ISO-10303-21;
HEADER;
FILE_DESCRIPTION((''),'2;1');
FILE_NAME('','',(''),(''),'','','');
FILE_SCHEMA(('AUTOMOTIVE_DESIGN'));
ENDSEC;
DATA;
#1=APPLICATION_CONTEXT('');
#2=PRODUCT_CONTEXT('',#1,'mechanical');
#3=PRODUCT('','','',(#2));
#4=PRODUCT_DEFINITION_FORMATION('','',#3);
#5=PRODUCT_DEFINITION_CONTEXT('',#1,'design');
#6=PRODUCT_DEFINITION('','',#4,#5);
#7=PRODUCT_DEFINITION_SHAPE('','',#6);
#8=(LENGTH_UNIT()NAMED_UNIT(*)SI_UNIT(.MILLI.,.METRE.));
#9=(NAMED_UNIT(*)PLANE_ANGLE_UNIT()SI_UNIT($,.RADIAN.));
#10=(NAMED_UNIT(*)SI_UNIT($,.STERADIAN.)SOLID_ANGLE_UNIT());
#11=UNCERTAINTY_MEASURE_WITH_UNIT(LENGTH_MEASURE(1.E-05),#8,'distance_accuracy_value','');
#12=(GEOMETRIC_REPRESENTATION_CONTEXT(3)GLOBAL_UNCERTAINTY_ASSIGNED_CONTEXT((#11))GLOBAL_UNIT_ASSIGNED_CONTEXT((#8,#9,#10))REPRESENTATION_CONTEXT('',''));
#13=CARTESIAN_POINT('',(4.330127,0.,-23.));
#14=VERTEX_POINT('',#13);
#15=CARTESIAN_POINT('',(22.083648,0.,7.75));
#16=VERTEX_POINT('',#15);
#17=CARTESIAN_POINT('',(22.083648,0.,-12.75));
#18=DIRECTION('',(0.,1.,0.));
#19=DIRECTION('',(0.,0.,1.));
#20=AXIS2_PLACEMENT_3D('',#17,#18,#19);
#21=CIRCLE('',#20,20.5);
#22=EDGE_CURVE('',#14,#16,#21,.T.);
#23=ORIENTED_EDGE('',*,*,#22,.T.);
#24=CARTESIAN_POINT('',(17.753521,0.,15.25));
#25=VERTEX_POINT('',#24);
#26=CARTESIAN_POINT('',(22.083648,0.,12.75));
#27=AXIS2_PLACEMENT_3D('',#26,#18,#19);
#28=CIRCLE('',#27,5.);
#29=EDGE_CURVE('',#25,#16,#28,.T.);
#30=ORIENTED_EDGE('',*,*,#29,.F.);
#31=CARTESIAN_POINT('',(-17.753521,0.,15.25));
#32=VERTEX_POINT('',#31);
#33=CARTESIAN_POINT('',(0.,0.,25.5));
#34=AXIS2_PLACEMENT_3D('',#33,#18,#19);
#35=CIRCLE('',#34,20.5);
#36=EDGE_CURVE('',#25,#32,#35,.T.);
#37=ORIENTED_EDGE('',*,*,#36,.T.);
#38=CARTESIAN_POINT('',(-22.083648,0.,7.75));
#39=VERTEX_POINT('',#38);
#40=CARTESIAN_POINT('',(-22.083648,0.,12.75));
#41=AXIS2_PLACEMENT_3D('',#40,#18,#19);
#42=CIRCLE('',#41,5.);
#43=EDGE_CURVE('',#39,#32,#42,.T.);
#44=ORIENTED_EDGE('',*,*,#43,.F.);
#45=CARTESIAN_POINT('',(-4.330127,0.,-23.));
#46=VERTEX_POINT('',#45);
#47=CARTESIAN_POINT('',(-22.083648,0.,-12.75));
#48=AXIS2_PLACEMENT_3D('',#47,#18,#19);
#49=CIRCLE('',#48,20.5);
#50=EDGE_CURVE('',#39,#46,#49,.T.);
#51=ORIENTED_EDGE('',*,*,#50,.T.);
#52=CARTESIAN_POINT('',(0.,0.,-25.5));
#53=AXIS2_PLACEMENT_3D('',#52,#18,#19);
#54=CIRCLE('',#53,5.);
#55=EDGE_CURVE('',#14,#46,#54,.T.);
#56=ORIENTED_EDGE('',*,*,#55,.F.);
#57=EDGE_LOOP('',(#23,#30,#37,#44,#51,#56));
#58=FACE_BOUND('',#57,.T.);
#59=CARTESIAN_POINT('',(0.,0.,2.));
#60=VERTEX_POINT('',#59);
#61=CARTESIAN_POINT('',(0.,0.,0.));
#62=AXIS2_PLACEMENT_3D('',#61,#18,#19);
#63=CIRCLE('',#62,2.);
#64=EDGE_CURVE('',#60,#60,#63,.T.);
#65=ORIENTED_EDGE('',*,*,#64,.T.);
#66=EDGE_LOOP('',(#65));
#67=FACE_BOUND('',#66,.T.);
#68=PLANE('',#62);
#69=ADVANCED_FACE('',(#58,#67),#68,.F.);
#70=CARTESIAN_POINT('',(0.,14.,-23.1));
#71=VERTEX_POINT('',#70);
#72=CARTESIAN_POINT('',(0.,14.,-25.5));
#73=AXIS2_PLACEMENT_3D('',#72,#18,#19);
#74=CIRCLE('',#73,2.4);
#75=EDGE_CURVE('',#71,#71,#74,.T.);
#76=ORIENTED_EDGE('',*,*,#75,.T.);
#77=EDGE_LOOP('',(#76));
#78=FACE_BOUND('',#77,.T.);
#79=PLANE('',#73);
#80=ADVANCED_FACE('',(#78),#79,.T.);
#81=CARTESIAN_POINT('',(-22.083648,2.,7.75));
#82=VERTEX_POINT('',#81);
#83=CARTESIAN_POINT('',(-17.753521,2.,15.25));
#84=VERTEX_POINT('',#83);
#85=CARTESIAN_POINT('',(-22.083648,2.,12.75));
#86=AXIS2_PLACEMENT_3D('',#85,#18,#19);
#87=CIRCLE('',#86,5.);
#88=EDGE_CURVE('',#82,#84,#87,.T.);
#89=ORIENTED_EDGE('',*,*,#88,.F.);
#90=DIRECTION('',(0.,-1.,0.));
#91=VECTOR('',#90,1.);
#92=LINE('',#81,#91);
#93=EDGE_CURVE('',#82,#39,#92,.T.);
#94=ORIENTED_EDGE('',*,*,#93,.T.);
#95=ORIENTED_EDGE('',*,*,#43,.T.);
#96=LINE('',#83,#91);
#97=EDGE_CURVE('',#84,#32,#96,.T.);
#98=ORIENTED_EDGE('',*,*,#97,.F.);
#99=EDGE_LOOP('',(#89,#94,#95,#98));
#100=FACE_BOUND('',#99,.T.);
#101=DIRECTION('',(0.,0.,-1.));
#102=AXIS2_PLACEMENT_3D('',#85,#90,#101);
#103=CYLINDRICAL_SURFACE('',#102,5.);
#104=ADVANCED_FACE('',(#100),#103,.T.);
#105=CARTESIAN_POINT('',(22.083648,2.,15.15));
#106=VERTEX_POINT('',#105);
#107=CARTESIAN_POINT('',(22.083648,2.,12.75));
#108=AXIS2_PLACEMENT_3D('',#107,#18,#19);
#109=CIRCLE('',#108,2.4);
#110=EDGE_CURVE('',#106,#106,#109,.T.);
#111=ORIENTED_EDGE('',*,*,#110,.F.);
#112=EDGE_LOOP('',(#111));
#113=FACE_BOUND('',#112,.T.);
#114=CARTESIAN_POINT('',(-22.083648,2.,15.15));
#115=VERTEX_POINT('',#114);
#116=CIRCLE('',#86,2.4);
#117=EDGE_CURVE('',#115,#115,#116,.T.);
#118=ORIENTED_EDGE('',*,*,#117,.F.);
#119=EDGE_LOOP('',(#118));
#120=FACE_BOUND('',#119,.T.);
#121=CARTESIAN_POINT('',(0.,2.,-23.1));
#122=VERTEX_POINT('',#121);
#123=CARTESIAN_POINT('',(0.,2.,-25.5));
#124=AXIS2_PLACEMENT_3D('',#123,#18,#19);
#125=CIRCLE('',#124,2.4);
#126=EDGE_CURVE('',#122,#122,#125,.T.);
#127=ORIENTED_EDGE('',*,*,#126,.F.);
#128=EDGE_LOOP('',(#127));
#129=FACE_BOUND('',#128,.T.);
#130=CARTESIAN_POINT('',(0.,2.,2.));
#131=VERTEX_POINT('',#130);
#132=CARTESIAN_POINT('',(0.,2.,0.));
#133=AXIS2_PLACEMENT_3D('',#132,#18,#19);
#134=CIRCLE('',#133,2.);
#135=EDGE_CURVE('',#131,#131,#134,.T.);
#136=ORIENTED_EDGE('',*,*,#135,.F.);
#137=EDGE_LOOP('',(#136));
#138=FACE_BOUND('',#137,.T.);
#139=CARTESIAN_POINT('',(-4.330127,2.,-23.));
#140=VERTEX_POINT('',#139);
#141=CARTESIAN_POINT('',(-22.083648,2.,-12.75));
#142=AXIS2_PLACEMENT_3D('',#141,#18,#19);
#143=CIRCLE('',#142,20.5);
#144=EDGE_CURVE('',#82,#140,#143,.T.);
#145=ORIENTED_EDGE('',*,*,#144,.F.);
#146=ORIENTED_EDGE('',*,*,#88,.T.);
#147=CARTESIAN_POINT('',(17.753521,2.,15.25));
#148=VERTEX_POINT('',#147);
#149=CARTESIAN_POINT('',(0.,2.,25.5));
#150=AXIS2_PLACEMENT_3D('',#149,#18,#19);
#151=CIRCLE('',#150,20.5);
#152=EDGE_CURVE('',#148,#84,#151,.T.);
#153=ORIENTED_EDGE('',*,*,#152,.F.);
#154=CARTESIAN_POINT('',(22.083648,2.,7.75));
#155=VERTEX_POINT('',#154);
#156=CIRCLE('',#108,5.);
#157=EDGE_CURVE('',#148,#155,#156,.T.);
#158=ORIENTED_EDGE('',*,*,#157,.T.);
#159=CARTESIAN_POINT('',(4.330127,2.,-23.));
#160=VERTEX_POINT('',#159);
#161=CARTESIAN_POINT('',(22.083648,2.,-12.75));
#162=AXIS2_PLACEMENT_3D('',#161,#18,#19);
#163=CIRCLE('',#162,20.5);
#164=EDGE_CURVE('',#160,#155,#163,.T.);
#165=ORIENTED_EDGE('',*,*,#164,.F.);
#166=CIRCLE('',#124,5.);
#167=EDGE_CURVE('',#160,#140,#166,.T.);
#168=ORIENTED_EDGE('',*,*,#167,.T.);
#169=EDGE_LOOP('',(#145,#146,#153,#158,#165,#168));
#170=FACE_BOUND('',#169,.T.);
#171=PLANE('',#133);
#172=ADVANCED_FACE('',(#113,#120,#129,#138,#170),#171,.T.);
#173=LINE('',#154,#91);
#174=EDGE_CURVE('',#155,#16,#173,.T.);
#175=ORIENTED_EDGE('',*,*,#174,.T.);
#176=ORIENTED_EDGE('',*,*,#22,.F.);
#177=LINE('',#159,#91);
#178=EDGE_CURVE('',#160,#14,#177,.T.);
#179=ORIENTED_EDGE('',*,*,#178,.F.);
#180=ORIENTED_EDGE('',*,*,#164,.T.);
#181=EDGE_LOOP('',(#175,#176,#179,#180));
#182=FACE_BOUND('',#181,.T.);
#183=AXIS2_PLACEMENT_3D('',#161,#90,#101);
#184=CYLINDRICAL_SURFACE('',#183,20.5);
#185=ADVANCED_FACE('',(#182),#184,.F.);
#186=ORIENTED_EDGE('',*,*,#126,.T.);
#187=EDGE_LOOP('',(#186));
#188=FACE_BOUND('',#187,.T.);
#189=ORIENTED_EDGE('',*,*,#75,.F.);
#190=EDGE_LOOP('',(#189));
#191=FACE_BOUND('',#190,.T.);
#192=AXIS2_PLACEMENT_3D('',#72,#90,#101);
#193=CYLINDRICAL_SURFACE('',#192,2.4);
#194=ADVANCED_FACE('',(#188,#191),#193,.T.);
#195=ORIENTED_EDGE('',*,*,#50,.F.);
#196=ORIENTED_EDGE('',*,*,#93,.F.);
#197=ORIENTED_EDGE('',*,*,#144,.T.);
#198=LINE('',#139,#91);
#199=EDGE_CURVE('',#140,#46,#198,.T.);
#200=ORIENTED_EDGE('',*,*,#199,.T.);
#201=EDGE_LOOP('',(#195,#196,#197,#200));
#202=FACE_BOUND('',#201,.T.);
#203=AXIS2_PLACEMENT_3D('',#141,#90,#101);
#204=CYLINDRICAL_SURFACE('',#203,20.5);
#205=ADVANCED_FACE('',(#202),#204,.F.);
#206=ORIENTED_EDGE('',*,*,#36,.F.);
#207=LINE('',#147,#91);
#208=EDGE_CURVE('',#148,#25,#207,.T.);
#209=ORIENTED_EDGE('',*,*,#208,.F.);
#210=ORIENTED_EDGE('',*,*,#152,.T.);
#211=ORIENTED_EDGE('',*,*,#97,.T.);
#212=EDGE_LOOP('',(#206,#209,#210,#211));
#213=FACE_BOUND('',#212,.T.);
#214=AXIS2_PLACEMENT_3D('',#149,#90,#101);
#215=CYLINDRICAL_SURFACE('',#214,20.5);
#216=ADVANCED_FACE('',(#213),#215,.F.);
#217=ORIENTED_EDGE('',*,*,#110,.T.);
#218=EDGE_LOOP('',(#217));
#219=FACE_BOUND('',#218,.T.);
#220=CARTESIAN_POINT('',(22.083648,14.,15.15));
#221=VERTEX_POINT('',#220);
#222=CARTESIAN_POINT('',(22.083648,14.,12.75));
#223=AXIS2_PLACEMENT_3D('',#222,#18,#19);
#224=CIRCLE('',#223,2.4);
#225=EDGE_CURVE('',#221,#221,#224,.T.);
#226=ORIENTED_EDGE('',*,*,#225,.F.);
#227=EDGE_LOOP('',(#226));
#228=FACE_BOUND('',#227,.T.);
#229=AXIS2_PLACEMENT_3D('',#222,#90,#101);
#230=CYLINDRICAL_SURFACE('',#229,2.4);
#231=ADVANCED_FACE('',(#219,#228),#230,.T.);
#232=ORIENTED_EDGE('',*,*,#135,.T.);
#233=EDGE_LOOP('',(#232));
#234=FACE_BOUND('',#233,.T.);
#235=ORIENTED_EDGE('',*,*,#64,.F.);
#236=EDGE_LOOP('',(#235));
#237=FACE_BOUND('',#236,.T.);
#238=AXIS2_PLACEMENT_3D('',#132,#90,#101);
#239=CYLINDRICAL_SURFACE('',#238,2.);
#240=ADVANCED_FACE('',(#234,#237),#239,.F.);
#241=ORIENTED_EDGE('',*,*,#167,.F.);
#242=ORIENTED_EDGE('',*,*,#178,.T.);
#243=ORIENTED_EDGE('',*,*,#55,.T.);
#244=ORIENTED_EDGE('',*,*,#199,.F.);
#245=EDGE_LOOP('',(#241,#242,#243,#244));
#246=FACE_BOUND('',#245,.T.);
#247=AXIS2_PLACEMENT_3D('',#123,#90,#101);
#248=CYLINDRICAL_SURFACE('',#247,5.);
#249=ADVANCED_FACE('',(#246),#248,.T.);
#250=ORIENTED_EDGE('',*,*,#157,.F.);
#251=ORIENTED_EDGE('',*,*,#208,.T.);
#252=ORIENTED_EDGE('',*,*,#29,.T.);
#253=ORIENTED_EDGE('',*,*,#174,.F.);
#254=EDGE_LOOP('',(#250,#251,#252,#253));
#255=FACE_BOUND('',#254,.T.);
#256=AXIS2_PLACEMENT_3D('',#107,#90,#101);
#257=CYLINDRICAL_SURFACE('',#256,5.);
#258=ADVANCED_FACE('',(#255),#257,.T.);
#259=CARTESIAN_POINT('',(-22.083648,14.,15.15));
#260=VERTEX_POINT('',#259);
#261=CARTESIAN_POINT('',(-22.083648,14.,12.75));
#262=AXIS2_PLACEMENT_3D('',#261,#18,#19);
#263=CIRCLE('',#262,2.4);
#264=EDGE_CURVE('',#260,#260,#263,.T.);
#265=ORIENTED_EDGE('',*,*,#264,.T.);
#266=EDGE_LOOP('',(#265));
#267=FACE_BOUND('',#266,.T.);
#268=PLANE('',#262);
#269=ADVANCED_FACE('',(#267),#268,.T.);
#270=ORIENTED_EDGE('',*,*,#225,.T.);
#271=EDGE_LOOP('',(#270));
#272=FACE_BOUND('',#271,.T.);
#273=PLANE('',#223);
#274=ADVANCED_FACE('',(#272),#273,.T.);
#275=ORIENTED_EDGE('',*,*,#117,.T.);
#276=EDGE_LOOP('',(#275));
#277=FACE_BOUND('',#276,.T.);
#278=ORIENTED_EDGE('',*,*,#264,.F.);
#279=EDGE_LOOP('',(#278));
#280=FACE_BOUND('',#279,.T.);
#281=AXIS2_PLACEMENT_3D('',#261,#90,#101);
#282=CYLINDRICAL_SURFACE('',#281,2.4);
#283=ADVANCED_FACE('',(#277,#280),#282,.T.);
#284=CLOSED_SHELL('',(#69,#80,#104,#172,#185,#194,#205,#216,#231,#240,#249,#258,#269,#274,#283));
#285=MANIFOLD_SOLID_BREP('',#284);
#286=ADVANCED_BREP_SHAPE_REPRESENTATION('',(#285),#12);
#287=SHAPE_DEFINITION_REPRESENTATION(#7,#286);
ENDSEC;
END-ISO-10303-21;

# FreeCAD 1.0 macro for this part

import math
import FreeCAD as App
import Part
import Sketcher
Q = App.Units.Quantity

doc = App.newDocument("Part")
body = doc.addObject("PartDesign::Body", "Body")

# Sketch on XZ plane
sketch1 = body.newObject("Sketcher::SketchObject", "Sketch")
sketch1.AttachmentSupport = (doc.getObject("XZ_Plane"), [""])
sketch1.MapMode = "FlatFace"
sketch1.addGeometry([
    Part.ArcOfCircle(Part.Circle(App.Vector(22.083648, -12.75, 0), App.Vector(0, 0, 1), 20.5), math.radians(90), math.radians(210)),  # 0
    Part.ArcOfCircle(Part.Circle(App.Vector(0, -25.5, 0), App.Vector(0, 0, 1), 5), math.radians(5.626271), math.radians(30)),  # 1
    Part.ArcOfCircle(Part.Circle(App.Vector(0, -25.5, 0), App.Vector(0, 0, 1), 5), math.radians(174.373729), math.radians(365.626271)),  # 2
    Part.ArcOfCircle(Part.Circle(App.Vector(0, -25.5, 0), App.Vector(0, 0, 1), 5), math.radians(150), math.radians(174.373729)),  # 3
    Part.ArcOfCircle(Part.Circle(App.Vector(-22.083648, -12.75, 0), App.Vector(0, 0, 1), 20.5), math.radians(-30), math.radians(0)),  # 4
    Part.ArcOfCircle(Part.Circle(App.Vector(-22.083648, -12.75, 0), App.Vector(0, 0, 1), 20.5), math.radians(0), math.radians(90)),  # 5
    Part.ArcOfCircle(Part.Circle(App.Vector(-22.083648, 12.75, 0), App.Vector(0, 0, 1), 5), math.radians(-114.373729), math.radians(-90)),  # 6
    Part.ArcOfCircle(Part.Circle(App.Vector(-22.083648, 12.75, 0), App.Vector(0, 0, 1), 5), math.radians(54.373729), math.radians(245.626271)),  # 7
    Part.ArcOfCircle(Part.Circle(App.Vector(-22.083648, 12.75, 0), App.Vector(0, 0, 1), 5), math.radians(30), math.radians(54.373729)),  # 8
    Part.ArcOfCircle(Part.Circle(App.Vector(0, 25.5, 0), App.Vector(0, 0, 1), 20.5), math.radians(-150), math.radians(-30)),  # 9
    Part.ArcOfCircle(Part.Circle(App.Vector(22.083648, 12.75, 0), App.Vector(0, 0, 1), 5), math.radians(125.626271), math.radians(150)),  # 10
    Part.ArcOfCircle(Part.Circle(App.Vector(22.083648, 12.75, 0), App.Vector(0, 0, 1), 5), math.radians(-65.626271), math.radians(125.626271)),  # 11
    Part.ArcOfCircle(Part.Circle(App.Vector(22.083648, 12.75, 0), App.Vector(0, 0, 1), 5), math.radians(-90), math.radians(-65.626271)),  # 12
    Part.Circle(App.Vector(0, 0, 0), App.Vector(0, 0, 1), 2),  # 13
], False)
sketch1.addConstraint([
    Sketcher.Constraint("Tangent", 0, 2, 1, 2),
    Sketcher.Constraint("Tangent", 1, 1, 2, 2),
    Sketcher.Constraint("Tangent", 2, 1, 3, 2),
    Sketcher.Constraint("Tangent", 3, 1, 4, 1),
    Sketcher.Constraint("Tangent", 4, 2, 5, 1),
    Sketcher.Constraint("Tangent", 5, 2, 6, 2),
    Sketcher.Constraint("Tangent", 6, 1, 7, 2),
    Sketcher.Constraint("Tangent", 7, 1, 8, 2),
    Sketcher.Constraint("Tangent", 8, 1, 9, 1),
    Sketcher.Constraint("Tangent", 9, 2, 10, 2),
    Sketcher.Constraint("Tangent", 10, 1, 11, 2),
    Sketcher.Constraint("Tangent", 11, 1, 12, 2),
    Sketcher.Constraint("Tangent", 12, 1, 0, 1),
    Sketcher.Constraint("Coincident", 13, 3, -1, 1),
    Sketcher.Constraint("Coincident", 3, 3, 1, 3),
    Sketcher.Constraint("Coincident", 8, 3, 6, 3),
    Sketcher.Constraint("Coincident", 12, 3, 10, 3),
    Sketcher.Constraint("Equal", 0, 4),
    Sketcher.Constraint("Equal", 4, 5),
    Sketcher.Constraint("Equal", 3, 6),
    Sketcher.Constraint("Equal", 5, 9),
    Sketcher.Constraint("Equal", 8, 10),
    Sketcher.Constraint("Symmetric", 0, 3, 6, 3, -1, 1),
    Sketcher.Constraint("Symmetric", 0, 3, 4, 3, -2),
    Sketcher.Constraint("Symmetric", 7, 1, 10, 1, -2),
    Sketcher.Constraint("Horizontal", 1, 1, 2, 1),
    Sketcher.Constraint("Horizontal", 5, 3, 4, 2),
    Sketcher.Constraint("Horizontal", 6, 1, 11, 1),
    Sketcher.Constraint("Diameter", 13, Q("4 mm")),
    Sketcher.Constraint("Radius", 1, Q("5 mm")),
    Sketcher.Constraint("Radius", 0, Q("20.5 mm")),
    Sketcher.Constraint("DistanceY", 0, 2, -1, 1, Q("23 mm")),
    Sketcher.Constraint("DistanceX", 6, 1, -1, 1, Q("24.147082 mm")),
    Sketcher.Constraint("DistanceX", 7, 1, -1, 1, Q("19.171169 mm")),
    Sketcher.Constraint("DistanceX", 2, 1, 0, 2, Q("9.30604 mm")),
])
pad1 = body.newObject("PartDesign::Pad", "Pad")
pad1.Profile = sketch1
pad1.Length = 2
pad1.Reversed = True

# Sketch on XZ plane
sketch2 = body.newObject("Sketcher::SketchObject", "Sketch001")
sketch2.AttachmentSupport = (doc.getObject("XZ_Plane"), [""])
sketch2.MapMode = "FlatFace"
sketch2.AttachmentOffset = App.Placement(App.Vector(0, 0, -2), App.Rotation())
sketch2.addGeometry([
    Part.Circle(App.Vector(-22.083648, 12.75, 0), App.Vector(0, 0, 1), 2.4),
    Part.Circle(App.Vector(22.083648, 12.75, 0), App.Vector(0, 0, 1), 2.4),
    Part.Circle(App.Vector(0, -25.5, 0), App.Vector(0, 0, 1), 2.4),
], False)
sketch2.addConstraint([
    Sketcher.Constraint("Equal", 0, 1),
    Sketcher.Constraint("Equal", 1, 2),
    Sketcher.Constraint("Symmetric", 0, 3, 1, 3, -2),
    Sketcher.Constraint("PointOnObject", 2, 3, -2),
    Sketcher.Constraint("Diameter", 0, Q("4.8 mm")),
    Sketcher.Constraint("DistanceY", 2, 3, -1, 1, Q("25.5 mm")),
    Sketcher.Constraint("DistanceY", -1, 1, 0, 3, Q("12.75 mm")),
    Sketcher.Constraint("DistanceX", 0, 3, -1, 1, Q("22.083648 mm")),
])
pad2 = body.newObject("PartDesign::Pad", "Pad001")
pad2.Profile = sketch2
pad2.Length = 12
pad2.Reversed = True

doc.recompute()
